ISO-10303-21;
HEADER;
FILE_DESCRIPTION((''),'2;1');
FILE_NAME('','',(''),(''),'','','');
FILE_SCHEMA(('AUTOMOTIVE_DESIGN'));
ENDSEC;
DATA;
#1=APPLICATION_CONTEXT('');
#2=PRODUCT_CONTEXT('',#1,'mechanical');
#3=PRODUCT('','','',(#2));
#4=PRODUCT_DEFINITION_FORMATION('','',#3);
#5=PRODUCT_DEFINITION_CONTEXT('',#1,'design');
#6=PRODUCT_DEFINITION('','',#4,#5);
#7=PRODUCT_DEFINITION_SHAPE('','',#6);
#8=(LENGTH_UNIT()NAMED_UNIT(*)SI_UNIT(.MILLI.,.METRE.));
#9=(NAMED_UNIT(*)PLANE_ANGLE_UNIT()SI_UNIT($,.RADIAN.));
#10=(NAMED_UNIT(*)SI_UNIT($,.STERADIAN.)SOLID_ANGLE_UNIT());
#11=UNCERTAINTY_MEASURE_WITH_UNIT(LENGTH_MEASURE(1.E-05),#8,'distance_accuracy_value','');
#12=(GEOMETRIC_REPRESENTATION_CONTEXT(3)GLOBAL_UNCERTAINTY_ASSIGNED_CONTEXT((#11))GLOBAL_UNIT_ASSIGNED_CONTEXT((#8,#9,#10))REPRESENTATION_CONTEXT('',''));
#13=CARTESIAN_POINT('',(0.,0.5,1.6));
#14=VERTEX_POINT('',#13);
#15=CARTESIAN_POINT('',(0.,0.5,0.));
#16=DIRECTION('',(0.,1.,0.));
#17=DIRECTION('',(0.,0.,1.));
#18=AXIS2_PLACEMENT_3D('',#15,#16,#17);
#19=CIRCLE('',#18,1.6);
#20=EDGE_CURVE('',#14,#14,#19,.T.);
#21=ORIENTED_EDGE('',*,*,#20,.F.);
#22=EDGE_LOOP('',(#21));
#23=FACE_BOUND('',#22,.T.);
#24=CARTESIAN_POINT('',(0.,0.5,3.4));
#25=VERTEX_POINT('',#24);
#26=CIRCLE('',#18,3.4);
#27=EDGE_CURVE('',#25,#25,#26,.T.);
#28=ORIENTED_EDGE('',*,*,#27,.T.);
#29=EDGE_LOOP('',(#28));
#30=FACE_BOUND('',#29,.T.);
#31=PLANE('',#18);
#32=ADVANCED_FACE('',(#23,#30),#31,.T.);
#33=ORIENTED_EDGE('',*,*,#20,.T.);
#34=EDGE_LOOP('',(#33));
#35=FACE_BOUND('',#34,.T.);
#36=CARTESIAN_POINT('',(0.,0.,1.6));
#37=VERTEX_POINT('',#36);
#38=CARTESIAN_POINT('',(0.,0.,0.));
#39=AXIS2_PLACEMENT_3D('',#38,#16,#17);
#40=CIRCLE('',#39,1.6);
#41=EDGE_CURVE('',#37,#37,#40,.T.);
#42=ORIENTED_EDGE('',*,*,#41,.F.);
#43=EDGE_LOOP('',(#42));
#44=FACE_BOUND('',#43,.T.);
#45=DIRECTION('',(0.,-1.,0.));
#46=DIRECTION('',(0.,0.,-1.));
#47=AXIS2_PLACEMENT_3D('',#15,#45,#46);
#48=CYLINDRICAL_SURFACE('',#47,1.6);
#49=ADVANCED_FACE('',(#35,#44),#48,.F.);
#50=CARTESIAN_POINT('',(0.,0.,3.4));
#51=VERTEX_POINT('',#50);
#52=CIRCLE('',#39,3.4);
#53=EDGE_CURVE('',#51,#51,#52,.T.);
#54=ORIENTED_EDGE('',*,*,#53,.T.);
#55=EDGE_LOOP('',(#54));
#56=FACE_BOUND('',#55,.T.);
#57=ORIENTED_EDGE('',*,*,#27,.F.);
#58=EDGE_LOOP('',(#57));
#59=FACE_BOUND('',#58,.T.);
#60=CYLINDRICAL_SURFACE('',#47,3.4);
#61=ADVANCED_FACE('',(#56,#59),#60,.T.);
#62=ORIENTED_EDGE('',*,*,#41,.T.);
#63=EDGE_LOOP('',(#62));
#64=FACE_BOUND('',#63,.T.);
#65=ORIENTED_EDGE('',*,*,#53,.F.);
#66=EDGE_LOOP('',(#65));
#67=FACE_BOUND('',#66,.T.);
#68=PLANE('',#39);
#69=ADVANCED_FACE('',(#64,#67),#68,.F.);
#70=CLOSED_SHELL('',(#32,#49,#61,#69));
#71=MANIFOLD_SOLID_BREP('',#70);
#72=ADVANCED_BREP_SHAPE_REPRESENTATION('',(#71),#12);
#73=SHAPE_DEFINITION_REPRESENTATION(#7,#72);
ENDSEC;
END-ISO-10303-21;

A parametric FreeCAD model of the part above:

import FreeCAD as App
import Part
import Sketcher

V = App.Vector

doc = App.newDocument("Part")
body = doc.addObject("PartDesign::Body", "Body")

# Sketch on XZ plane
sketch1 = body.newObject("Sketcher::SketchObject", "Sketch")
sketch1.AttachmentSupport = (doc.getObject("XZ_Plane"), [""])
sketch1.MapMode = "FlatFace"
sketch1.addGeometry([
    Part.Circle(V(0, 0, 0), V(0, 0, 1), 3.4),
    Part.Circle(V(0, 0, 0), V(0, 0, 1), 1.6),
], False)
sketch1.addConstraint([
    Sketcher.Constraint("Coincident", 0, 3, -1, 1),
    Sketcher.Constraint("Coincident", 1, 3, -1, 1),
    Sketcher.Constraint("Diameter", 0, 6.8),
    Sketcher.Constraint("Diameter", 1, 3.2),
])
pad1 = body.newObject("PartDesign::Pad", "Pad")
pad1.Profile = sketch1
pad1.Length = 0.5
pad1.Reversed = True

doc.recompute()
